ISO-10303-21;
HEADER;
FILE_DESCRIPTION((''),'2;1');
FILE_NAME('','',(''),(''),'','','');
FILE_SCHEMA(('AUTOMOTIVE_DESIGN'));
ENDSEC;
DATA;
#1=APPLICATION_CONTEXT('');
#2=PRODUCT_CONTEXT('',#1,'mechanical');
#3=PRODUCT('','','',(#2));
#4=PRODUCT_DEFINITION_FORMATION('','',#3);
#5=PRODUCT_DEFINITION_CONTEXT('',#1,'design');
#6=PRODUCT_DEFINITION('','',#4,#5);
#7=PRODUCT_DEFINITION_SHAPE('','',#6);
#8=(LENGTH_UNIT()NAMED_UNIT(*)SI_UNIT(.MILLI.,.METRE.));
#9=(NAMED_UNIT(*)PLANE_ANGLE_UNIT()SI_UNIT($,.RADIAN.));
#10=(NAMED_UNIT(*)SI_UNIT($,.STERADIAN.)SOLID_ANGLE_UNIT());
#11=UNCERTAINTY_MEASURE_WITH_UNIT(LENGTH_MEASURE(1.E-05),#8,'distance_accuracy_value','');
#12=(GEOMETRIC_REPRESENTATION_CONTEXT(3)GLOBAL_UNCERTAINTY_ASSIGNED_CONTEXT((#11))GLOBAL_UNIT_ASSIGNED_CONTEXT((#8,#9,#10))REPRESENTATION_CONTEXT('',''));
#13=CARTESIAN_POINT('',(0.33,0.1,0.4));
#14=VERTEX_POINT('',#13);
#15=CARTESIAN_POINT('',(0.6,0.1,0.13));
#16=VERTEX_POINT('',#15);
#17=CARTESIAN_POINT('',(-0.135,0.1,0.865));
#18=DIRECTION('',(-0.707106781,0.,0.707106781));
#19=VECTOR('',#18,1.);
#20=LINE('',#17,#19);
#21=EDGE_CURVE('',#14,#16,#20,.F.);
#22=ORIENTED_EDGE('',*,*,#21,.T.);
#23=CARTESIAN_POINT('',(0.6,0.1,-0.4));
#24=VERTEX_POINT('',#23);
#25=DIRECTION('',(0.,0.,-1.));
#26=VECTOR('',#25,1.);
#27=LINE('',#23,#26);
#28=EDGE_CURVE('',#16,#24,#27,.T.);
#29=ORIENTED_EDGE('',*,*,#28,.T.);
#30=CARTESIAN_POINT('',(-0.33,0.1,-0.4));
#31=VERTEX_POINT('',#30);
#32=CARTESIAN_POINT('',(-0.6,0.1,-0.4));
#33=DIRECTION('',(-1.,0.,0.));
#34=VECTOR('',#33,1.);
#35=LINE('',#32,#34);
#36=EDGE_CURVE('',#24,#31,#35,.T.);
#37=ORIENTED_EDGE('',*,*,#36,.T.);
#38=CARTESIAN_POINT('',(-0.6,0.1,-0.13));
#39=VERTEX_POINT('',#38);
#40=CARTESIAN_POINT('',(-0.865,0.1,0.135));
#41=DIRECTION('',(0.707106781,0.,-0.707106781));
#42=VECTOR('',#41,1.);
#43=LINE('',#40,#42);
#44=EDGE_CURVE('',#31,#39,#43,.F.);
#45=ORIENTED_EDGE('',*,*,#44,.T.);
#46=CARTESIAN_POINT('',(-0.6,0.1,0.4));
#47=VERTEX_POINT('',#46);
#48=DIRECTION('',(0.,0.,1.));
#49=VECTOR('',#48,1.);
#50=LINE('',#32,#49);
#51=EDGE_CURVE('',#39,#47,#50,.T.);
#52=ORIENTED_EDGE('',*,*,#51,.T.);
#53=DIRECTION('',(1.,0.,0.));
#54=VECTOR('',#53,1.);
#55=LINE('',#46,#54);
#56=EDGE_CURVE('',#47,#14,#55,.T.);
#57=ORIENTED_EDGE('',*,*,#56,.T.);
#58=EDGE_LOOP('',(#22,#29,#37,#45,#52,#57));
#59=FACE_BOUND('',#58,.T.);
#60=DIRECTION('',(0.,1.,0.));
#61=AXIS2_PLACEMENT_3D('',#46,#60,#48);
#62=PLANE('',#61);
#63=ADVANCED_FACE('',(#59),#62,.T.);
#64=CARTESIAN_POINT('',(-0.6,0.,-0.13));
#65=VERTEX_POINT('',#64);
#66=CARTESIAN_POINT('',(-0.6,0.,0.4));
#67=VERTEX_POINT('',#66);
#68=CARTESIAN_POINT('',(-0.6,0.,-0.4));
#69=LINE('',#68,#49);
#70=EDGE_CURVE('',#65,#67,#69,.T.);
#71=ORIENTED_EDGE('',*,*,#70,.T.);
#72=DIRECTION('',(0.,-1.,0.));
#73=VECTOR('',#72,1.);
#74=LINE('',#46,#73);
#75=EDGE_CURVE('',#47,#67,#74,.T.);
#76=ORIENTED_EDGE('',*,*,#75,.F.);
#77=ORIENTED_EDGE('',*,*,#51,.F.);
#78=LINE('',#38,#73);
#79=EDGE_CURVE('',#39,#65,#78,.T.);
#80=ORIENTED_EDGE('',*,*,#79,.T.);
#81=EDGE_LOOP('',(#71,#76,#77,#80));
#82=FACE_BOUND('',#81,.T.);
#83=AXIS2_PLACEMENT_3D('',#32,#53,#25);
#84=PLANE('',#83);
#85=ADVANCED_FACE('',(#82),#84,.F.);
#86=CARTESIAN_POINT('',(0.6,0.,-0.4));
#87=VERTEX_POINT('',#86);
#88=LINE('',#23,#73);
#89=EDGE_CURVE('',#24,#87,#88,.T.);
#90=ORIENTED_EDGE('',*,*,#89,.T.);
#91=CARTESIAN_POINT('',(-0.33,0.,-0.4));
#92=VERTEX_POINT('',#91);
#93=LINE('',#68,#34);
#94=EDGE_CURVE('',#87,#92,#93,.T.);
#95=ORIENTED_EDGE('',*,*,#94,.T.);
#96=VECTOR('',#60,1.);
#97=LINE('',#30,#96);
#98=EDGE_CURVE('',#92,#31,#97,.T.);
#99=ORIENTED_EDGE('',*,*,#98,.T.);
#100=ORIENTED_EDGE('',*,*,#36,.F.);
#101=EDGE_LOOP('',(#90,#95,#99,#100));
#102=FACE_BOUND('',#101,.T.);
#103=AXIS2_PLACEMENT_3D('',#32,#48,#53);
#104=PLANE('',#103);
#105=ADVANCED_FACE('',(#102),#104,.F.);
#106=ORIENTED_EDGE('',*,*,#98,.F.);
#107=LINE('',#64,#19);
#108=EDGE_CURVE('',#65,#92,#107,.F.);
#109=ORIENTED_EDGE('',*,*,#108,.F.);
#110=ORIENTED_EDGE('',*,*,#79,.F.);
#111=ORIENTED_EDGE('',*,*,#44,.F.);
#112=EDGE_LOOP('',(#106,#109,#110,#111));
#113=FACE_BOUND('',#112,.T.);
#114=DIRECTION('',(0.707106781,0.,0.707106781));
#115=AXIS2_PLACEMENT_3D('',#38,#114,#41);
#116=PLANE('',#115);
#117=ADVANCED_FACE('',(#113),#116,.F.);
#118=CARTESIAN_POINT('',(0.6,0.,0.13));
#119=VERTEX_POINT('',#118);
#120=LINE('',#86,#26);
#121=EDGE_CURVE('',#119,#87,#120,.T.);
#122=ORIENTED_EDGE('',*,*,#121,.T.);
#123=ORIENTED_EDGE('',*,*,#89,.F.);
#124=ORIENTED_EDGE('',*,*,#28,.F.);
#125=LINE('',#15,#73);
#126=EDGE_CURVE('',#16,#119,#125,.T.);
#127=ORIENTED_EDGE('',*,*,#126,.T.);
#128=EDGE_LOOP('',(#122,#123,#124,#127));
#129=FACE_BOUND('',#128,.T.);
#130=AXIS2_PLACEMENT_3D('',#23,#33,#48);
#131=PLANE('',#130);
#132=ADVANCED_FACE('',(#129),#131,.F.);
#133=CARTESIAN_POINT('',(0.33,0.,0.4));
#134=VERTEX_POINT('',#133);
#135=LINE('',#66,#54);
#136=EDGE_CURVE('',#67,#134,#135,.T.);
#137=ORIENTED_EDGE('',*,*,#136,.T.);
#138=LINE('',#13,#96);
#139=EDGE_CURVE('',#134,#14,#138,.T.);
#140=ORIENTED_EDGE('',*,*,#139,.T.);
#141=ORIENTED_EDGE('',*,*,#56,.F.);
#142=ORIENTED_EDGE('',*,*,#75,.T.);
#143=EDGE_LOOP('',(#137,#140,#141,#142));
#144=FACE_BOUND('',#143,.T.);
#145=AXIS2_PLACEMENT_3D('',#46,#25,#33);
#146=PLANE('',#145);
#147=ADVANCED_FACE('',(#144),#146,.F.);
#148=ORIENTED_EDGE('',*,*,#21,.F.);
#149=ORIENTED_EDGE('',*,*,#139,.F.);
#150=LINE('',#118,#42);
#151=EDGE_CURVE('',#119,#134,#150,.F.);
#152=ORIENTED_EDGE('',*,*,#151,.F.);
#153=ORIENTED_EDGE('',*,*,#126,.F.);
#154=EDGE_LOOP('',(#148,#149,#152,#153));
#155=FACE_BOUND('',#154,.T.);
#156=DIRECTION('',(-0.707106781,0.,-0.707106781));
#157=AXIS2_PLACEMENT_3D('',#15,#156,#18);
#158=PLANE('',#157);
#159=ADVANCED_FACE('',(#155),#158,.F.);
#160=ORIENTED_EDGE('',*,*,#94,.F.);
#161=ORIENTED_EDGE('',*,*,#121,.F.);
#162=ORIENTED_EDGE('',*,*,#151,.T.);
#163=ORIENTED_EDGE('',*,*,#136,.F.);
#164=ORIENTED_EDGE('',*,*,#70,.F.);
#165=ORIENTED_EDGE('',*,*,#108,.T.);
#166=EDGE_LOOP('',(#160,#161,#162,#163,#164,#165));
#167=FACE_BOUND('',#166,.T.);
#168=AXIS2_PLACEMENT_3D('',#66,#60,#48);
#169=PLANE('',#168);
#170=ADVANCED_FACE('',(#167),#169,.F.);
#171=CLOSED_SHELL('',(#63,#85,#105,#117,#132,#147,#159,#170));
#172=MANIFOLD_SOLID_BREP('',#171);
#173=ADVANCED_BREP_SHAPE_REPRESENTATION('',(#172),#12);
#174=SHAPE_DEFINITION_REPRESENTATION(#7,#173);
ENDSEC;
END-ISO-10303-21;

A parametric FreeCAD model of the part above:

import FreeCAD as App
import Part
import Sketcher
from FreeCAD import Vector
Q = App.Units.Quantity


def edges_at(feature, points):
    """Names of the edges that pass closest to the given points."""
    edges = feature.Shape.Edges
    near = lambda p: min(range(len(edges)), key=lambda i: edges[i].distToShape(Part.Vertex(*p))[0])
    return sorted({f"Edge{near(p) + 1}" for p in points})

doc = App.newDocument("Part")
body = doc.addObject("PartDesign::Body", "Body")

# Sketch on XZ plane
sketch1 = body.newObject("Sketcher::SketchObject", "Sketch")
sketch1.AttachmentSupport = (doc.getObject("XZ_Plane"), [""])
sketch1.MapMode = "FlatFace"
sketch1.addGeometry([
    Part.LineSegment(Vector(-0.6, -0.4, 0), Vector(-0.6, 0.4, 0)),
    Part.LineSegment(Vector(-0.6, 0.4, 0), Vector(0.6, 0.4, 0)),
    Part.LineSegment(Vector(0.6, 0.4, 0), Vector(0.6, -0.4, 0)),
    Part.LineSegment(Vector(0.6, -0.4, 0), Vector(-0.6, -0.4, 0)),
], False)
sketch1.addConstraint([
    Sketcher.Constraint("Coincident", 0, 2, 1, 1),
    Sketcher.Constraint("Coincident", 1, 2, 2, 1),
    Sketcher.Constraint("Coincident", 2, 2, 3, 1),
    Sketcher.Constraint("Coincident", 3, 2, 0, 1),
    Sketcher.Constraint("Vertical", 0),
    Sketcher.Constraint("Horizontal", 1),
    Sketcher.Constraint("Vertical", 2),
    Sketcher.Constraint("Horizontal", 3),
    Sketcher.Constraint("Symmetric", 0, 2, 2, 2, -1, 1),
    Sketcher.Constraint("DistanceX", 1, 1, 1, 2, Q("1.2 mm")),
    Sketcher.Constraint("DistanceY", 0, 1, 0, 2, Q("0.8 mm")),
])
pad1 = body.newObject("PartDesign::Pad", "Pad")
pad1.Profile = sketch1
pad1.Length = 0.1
pad1.Reversed = True
doc.recompute()

chamfer = body.newObject("PartDesign::Chamfer", "Chamfer")
chamfer.Base = (pad1, edges_at(pad1, [(0.6, 0.05, 0.4)]))
chamfer.Size = 0.27
doc.recompute()

chamfer2 = body.newObject("PartDesign::Chamfer", "Chamfer001")
chamfer2.Base = (chamfer, edges_at(chamfer, [(-0.6, 0.05, -0.4)]))
chamfer2.Size = 0.27

doc.recompute()
